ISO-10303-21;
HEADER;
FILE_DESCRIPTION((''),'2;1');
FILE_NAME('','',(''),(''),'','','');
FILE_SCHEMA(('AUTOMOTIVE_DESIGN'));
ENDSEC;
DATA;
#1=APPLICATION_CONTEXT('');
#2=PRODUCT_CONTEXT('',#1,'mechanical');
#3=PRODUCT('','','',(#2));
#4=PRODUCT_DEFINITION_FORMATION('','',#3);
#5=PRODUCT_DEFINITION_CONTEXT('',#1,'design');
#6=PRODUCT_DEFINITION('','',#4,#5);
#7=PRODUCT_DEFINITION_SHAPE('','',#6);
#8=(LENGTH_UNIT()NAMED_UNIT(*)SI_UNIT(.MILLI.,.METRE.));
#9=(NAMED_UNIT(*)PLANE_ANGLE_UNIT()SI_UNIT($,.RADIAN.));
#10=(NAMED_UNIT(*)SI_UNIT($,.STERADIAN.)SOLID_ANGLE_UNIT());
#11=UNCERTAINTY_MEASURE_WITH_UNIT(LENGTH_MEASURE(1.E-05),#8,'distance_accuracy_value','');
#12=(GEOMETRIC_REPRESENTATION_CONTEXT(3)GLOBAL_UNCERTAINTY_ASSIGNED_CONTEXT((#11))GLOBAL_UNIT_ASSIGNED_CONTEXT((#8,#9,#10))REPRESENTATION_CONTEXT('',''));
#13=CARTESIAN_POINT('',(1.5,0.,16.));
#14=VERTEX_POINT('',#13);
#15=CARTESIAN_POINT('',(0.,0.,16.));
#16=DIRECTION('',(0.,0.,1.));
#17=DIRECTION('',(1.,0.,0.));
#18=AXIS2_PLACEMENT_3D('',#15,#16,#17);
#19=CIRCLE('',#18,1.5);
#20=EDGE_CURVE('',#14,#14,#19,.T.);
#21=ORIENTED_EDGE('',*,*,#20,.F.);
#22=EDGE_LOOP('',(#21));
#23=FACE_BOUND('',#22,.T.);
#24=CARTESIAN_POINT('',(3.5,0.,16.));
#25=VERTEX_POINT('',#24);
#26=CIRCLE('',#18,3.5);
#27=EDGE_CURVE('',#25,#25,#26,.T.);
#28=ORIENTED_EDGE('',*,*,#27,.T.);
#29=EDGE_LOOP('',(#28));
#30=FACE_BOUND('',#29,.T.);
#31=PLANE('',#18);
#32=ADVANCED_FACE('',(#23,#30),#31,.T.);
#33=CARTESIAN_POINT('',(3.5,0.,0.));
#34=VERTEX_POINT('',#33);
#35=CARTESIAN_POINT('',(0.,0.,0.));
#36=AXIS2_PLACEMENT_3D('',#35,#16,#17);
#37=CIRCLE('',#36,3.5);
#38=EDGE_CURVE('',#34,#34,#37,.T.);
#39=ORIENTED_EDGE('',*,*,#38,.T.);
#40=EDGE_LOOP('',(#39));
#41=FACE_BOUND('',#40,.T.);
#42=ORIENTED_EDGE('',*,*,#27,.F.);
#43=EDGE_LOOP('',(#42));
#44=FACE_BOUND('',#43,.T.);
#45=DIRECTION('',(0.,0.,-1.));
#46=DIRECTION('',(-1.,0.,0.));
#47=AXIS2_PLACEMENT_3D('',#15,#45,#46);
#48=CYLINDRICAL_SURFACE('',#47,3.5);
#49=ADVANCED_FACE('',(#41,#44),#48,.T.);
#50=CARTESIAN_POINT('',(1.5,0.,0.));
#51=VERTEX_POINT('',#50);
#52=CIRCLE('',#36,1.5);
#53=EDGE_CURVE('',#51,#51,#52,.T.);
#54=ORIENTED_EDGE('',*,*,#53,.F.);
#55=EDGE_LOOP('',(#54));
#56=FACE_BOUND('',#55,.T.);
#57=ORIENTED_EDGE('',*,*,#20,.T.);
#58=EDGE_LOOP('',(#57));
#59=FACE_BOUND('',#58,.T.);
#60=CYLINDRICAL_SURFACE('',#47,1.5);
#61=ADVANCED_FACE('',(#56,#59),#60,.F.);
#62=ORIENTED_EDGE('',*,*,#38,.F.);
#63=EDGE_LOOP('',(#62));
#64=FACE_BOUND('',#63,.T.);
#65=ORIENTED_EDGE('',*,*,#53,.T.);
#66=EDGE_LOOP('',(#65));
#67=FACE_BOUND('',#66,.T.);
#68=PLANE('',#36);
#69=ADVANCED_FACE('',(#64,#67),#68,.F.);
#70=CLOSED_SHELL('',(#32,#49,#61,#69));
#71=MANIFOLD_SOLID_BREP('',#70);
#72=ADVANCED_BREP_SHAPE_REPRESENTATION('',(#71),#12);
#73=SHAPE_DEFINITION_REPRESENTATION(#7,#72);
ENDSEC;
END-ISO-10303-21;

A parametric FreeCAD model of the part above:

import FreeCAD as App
import Part
import Sketcher
from FreeCAD import Vector

doc = App.newDocument("Part")
params = doc.addObject("Spreadsheet::Sheet", "Params")
for row, (alias, value) in enumerate([
    ("sketch1_diameter", "7 mm"),
    ("sketch1_diameter2", "3 mm"),
    ("pad1_length", "16 mm"),
], start=1):
    params.set(f"A{row}", alias)
    params.set(f"B{row}", "=" + value)
    params.setAlias(f"B{row}", alias)

body = doc.addObject("PartDesign::Body", "Body")

sketch1 = doc.addObject("Sketcher::SketchObject", "Sketch")
body.addObject(sketch1)
sketch1.AttachmentSupport = (doc.XY_Plane, [""])
sketch1.MapMode = "FlatFace"
sketch1.addGeometry(Part.Circle(Vector(0, 0, 0), Vector(0, 0, 1), 3.5), False)
sketch1.addGeometry(Part.Circle(Vector(0, 0, 0), Vector(0, 0, 1), 1.5), False)
sketch1.addConstraint(Sketcher.Constraint("Coincident", 0, 3, -1, 1))
sketch1.addConstraint(Sketcher.Constraint("Coincident", 1, 3, -1, 1))
sketch1.addConstraint(Sketcher.Constraint("Diameter", 0, 7.0))
sketch1.addConstraint(Sketcher.Constraint("Diameter", 1, 3.0))
sketch1.setExpression("Constraints[2]", "Params.sketch1_diameter")
sketch1.setExpression("Constraints[3]", "Params.sketch1_diameter2")
pad1 = doc.addObject("PartDesign::Pad", "Pad")
body.addObject(pad1)
pad1.Profile = sketch1
pad1.setExpression("Length", "Params.pad1_length")

doc.recompute()
